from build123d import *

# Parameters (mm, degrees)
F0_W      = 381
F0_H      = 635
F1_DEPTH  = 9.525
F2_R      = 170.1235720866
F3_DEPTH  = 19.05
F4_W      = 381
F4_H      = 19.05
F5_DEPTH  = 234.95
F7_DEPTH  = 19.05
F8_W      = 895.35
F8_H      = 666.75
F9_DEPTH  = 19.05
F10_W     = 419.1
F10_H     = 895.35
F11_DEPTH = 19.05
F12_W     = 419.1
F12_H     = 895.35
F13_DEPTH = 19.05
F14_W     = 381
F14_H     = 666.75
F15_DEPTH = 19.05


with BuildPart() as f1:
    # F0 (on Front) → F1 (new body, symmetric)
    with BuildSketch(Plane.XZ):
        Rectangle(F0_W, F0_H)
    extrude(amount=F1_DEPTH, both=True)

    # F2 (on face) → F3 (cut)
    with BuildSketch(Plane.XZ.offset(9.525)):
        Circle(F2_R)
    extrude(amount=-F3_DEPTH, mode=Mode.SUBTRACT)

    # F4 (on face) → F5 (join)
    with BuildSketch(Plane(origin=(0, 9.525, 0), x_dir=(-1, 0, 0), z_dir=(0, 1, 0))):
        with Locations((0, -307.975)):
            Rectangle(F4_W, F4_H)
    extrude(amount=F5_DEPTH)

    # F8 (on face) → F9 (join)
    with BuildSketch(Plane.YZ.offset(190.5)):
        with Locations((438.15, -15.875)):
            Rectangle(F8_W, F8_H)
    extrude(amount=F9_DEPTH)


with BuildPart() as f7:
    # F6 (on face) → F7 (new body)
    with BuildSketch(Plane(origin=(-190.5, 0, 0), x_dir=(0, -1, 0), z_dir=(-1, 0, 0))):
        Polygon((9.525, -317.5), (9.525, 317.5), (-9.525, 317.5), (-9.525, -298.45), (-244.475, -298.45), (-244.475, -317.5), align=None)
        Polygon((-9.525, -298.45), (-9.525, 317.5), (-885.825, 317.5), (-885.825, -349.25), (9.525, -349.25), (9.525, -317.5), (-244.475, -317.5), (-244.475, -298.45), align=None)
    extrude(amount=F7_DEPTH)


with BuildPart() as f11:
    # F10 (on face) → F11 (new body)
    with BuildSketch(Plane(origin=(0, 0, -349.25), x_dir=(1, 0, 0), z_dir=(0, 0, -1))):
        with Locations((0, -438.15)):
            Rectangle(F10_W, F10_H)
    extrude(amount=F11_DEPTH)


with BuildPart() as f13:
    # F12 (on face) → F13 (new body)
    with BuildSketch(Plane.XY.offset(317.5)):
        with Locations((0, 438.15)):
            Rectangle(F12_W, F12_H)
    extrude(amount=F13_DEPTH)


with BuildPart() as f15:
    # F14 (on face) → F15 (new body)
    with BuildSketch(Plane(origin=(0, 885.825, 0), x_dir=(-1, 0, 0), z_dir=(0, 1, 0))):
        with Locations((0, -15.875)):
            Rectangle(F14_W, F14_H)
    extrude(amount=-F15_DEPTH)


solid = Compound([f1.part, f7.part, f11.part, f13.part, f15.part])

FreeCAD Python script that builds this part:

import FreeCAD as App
import Part
import Sketcher
Q = App.Units.Quantity


def add_polygon(sketch, points):
    """Adds a closed chain of lines whose ends are joined by coincident constraints."""
    first, n = sketch.GeometryCount, len(points)
    for a, b in zip(points, points[1:] + points[:1]):
        sketch.addGeometry(Part.LineSegment(App.Vector(*a, 0), App.Vector(*b, 0)), False)
    for i in range(n):
        sketch.addConstraint(Sketcher.Constraint("Coincident", first + i, 2, first + (i + 1) % n, 1))

doc = App.newDocument("Part")
params = doc.addObject("Spreadsheet::Sheet", "Params")
for row, (alias, value) in enumerate([
    ("sketch1_width", "15 in"),
    ("sketch1_height", "25 in"),
    ("pad1_length", "0.75 in"),
    ("pocket1_length", "0.75 in"),
    ("sketch3_width", "15 in"),
    ("sketch3_height", "0.75 in"),
    ("pad2_length", "9.25 in"),
    ("sketch4_width", "35.25 in"),
    ("sketch4_height", "26.25 in"),
    ("pad3_length", "0.75 in"),
    ("sketch5_width", "35.25 in"),
    ("sketch5_height", "26.25 in"),
    ("pad4_length", "0.75 in"),
    ("sketch6_width", "16.5 in"),
    ("sketch6_height", "35.25 in"),
    ("pad5_length", "0.75 in"),
    ("sketch7_width", "16.5 in"),
    ("sketch7_height", "35.25 in"),
    ("pad6_length", "0.75 in"),
    ("sketch8_width", "15 in"),
    ("sketch8_height", "26.25 in"),
    ("pad7_length", "0.75 in"),
], start=1):
    params.set(f"A{row}", alias)
    params.set(f"B{row}", "=" + value)
    params.setAlias(f"B{row}", alias)

body = doc.addObject("PartDesign::Body", "Body")

sketch1 = doc.addObject("Sketcher::SketchObject", "Sketch")
body.addObject(sketch1)
sketch1.AttachmentSupport = (doc.XZ_Plane, [""])
sketch1.MapMode = "FlatFace"
add_polygon(sketch1, [(-190, 318), (-190, -318), (190, -318), (190, 318)])
sketch1.addConstraint([
    Sketcher.Constraint("Vertical", 0),
    Sketcher.Constraint("Horizontal", 1),
    Sketcher.Constraint("Vertical", 2),
    Sketcher.Constraint("Horizontal", 3),
    Sketcher.Constraint("Symmetric", 0, 2, 2, 2, -1, 1),
    Sketcher.Constraint("DistanceX", 1, 1, 1, 2, Q("15 in")),
    Sketcher.Constraint("DistanceY", 0, 2, 0, 1, Q("25 in")),
])
sketch1.setExpression("Constraints[9]", "Params.sketch1_width")
sketch1.setExpression("Constraints[10]", "Params.sketch1_height")
pad1 = doc.addObject("PartDesign::Pad", "Pad")
body.addObject(pad1)
pad1.Profile = sketch1
pad1.setExpression("Length", "Params.pad1_length")
pad1.Midplane = True

sketch2 = doc.addObject("Sketcher::SketchObject", "Sketch001")
body.addObject(sketch2)
sketch2.AttachmentSupport = (doc.XZ_Plane, [""])
sketch2.MapMode = "FlatFace"
sketch2.AttachmentOffset = App.Placement(App.Vector(0, 0, 0.375 * 25.4), App.Rotation())
sketch2.addGeometry(Part.Circle(App.Vector(0, 0, 0), App.Vector(0, 0, 1), 170), False)
sketch2.addConstraint([
    Sketcher.Constraint("Coincident", 0, 3, -1, 1),
    Sketcher.Constraint("Diameter", 0, Q("340.247144 mm")),
])
pocket1 = doc.addObject("PartDesign::Pocket", "Pocket")
body.addObject(pocket1)
pocket1.Profile = sketch2
pocket1.setExpression("Length", "Params.pocket1_length")

sketch3 = doc.addObject("Sketcher::SketchObject", "Sketch002")
body.addObject(sketch3)
sketch3.AttachmentSupport = (doc.XZ_Plane, [""])
sketch3.MapMode = "FlatFace"
sketch3.AttachmentOffset = App.Placement(App.Vector(0, 0, -0.375 * 25.4), App.Rotation())
add_polygon(sketch3, [(190, -298), (190, -318), (-190, -318), (-190, -298)])
sketch3.addConstraint([
    Sketcher.Constraint("Vertical", 0),
    Sketcher.Constraint("Horizontal", 1),
    Sketcher.Constraint("Vertical", 2),
    Sketcher.Constraint("Horizontal", 3),
    Sketcher.Constraint("DistanceX", 1, 2, 1, 1, Q("15 in")),
    Sketcher.Constraint("DistanceY", 0, 2, 0, 1, Q("0.75 in")),
    Sketcher.Constraint("DistanceX", -1, 1, 0, 2, Q("7.5 in")),
    Sketcher.Constraint("DistanceY", 0, 2, -1, 1, Q("12.5 in")),
])
sketch3.setExpression("Constraints[8]", "Params.sketch3_width")
sketch3.setExpression("Constraints[9]", "Params.sketch3_height")
pad2 = doc.addObject("PartDesign::Pad", "Pad001")
body.addObject(pad2)
pad2.Profile = sketch3
pad2.setExpression("Length", "Params.pad2_length")
pad2.Reversed = True

sketch4 = doc.addObject("Sketcher::SketchObject", "Sketch003")
body.addObject(sketch4)
sketch4.AttachmentSupport = (doc.YZ_Plane, [""])
sketch4.MapMode = "FlatFace"
sketch4.AttachmentOffset = App.Placement(App.Vector(0, 0, 7.5 * 25.4), App.Rotation())
add_polygon(sketch4, [(-10, 318), (-10, -349), (886, -349), (886, 318)])
sketch4.addConstraint([
    Sketcher.Constraint("Vertical", 0),
    Sketcher.Constraint("Horizontal", 1),
    Sketcher.Constraint("Vertical", 2),
    Sketcher.Constraint("Horizontal", 3),
    Sketcher.Constraint("DistanceX", 1, 1, 1, 2, Q("35.25 in")),
    Sketcher.Constraint("DistanceY", 0, 2, 0, 1, Q("26.25 in")),
    Sketcher.Constraint("DistanceY", -1, 1, 2, 2, Q("12.5 in")),
    Sketcher.Constraint("DistanceX", 0, 2, -1, 1, Q("0.375 in")),
])
sketch4.setExpression("Constraints[8]", "Params.sketch4_width")
sketch4.setExpression("Constraints[9]", "Params.sketch4_height")
pad3 = doc.addObject("PartDesign::Pad", "Pad002")
body.addObject(pad3)
pad3.Profile = sketch4
pad3.setExpression("Length", "Params.pad3_length")
body2 = doc.addObject("PartDesign::Body", "Body001")

sketch5 = doc.addObject("Sketcher::SketchObject", "Sketch004")
body2.addObject(sketch5)
sketch5.AttachmentSupport = (doc.getObject("YZ_Plane001"), [""])
sketch5.MapMode = "FlatFace"
sketch5.AttachmentOffset = App.Placement(App.Vector(0, 0, -7.5 * 25.4), App.Rotation())
add_polygon(sketch5, [(-10, 318), (886, 318), (886, -349), (-10, -349)])
sketch5.addConstraint([
    Sketcher.Constraint("Horizontal", 0),
    Sketcher.Constraint("Vertical", 1),
    Sketcher.Constraint("Horizontal", 2),
    Sketcher.Constraint("Vertical", 3),
    Sketcher.Constraint("DistanceX", 0, 1, 0, 2, Q("35.25 in")),
    Sketcher.Constraint("DistanceY", 1, 2, 1, 1, Q("26.25 in")),
    Sketcher.Constraint("DistanceY", -1, 1, 0, 2, Q("12.5 in")),
    Sketcher.Constraint("DistanceX", -1, 1, 0, 2, Q("34.875 in")),
])
sketch5.setExpression("Constraints[8]", "Params.sketch5_width")
sketch5.setExpression("Constraints[9]", "Params.sketch5_height")
pad4 = doc.addObject("PartDesign::Pad", "Pad003")
body2.addObject(pad4)
pad4.Profile = sketch5
pad4.setExpression("Length", "Params.pad4_length")
pad4.Reversed = True
body3 = doc.addObject("PartDesign::Body", "Body002")

sketch6 = doc.addObject("Sketcher::SketchObject", "Sketch005")
body3.addObject(sketch6)
sketch6.AttachmentSupport = (doc.getObject("XY_Plane002"), [""])
sketch6.MapMode = "FlatFace"
sketch6.AttachmentOffset = App.Placement(App.Vector(0, 0, -13.75 * 25.4), App.Rotation())
add_polygon(sketch6, [(-210, -10), (-210, 886), (210, 886), (210, -10)])
sketch6.addConstraint([
    Sketcher.Constraint("Vertical", 0),
    Sketcher.Constraint("Horizontal", 1),
    Sketcher.Constraint("Vertical", 2),
    Sketcher.Constraint("Horizontal", 3),
    Sketcher.Constraint("DistanceX", 1, 1, 1, 2, Q("16.5 in")),
    Sketcher.Constraint("DistanceY", 0, 1, 0, 2, Q("35.25 in")),
    Sketcher.Constraint("DistanceX", 0, 2, -1, 1, Q("8.25 in")),
    Sketcher.Constraint("DistanceY", -1, 1, 0, 2, Q("34.875 in")),
])
sketch6.setExpression("Constraints[8]", "Params.sketch6_width")
sketch6.setExpression("Constraints[9]", "Params.sketch6_height")
pad5 = doc.addObject("PartDesign::Pad", "Pad004")
body3.addObject(pad5)
pad5.Profile = sketch6
pad5.setExpression("Length", "Params.pad5_length")
pad5.Reversed = True
body4 = doc.addObject("PartDesign::Body", "Body003")

sketch7 = doc.addObject("Sketcher::SketchObject", "Sketch006")
body4.addObject(sketch7)
sketch7.AttachmentSupport = (doc.getObject("XY_Plane003"), [""])
sketch7.MapMode = "FlatFace"
sketch7.AttachmentOffset = App.Placement(App.Vector(0, 0, 12.5 * 25.4), App.Rotation())
add_polygon(sketch7, [(-210, 886), (-210, -10), (210, -10), (210, 886)])
sketch7.addConstraint([
    Sketcher.Constraint("Vertical", 0),
    Sketcher.Constraint("Horizontal", 1),
    Sketcher.Constraint("Vertical", 2),
    Sketcher.Constraint("Horizontal", 3),
    Sketcher.Constraint("DistanceX", 1, 1, 1, 2, Q("16.5 in")),
    Sketcher.Constraint("DistanceY", 0, 2, 0, 1, Q("35.25 in")),
    Sketcher.Constraint("DistanceX", 0, 2, -1, 1, Q("8.25 in")),
    Sketcher.Constraint("DistanceY", 0, 2, -1, 1, Q("0.375 in")),
])
sketch7.setExpression("Constraints[8]", "Params.sketch7_width")
sketch7.setExpression("Constraints[9]", "Params.sketch7_height")
pad6 = doc.addObject("PartDesign::Pad", "Pad005")
body4.addObject(pad6)
pad6.Profile = sketch7
pad6.setExpression("Length", "Params.pad6_length")
body5 = doc.addObject("PartDesign::Body", "Body004")

sketch8 = doc.addObject("Sketcher::SketchObject", "Sketch007")
body5.addObject(sketch8)
sketch8.AttachmentSupport = (doc.getObject("XZ_Plane004"), [""])
sketch8.MapMode = "FlatFace"
sketch8.AttachmentOffset = App.Placement(App.Vector(0, 0, -34.875 * 25.4), App.Rotation())
add_polygon(sketch8, [(190, 318), (190, -349), (-190, -349), (-190, 318)])
sketch8.addConstraint([
    Sketcher.Constraint("Vertical", 0),
    Sketcher.Constraint("Horizontal", 1),
    Sketcher.Constraint("Vertical", 2),
    Sketcher.Constraint("Horizontal", 3),
    Sketcher.Constraint("DistanceX", 1, 2, 1, 1, Q("15 in")),
    Sketcher.Constraint("DistanceY", 0, 2, 0, 1, Q("26.25 in")),
    Sketcher.Constraint("DistanceX", -1, 1, 0, 2, Q("7.5 in")),
    Sketcher.Constraint("DistanceY", -1, 1, 2, 2, Q("12.5 in")),
])
sketch8.setExpression("Constraints[8]", "Params.sketch8_width")
sketch8.setExpression("Constraints[9]", "Params.sketch8_height")
pad7 = doc.addObject("PartDesign::Pad", "Pad006")
body5.addObject(pad7)
pad7.Profile = sketch8
pad7.setExpression("Length", "Params.pad7_length")

doc.recompute()
